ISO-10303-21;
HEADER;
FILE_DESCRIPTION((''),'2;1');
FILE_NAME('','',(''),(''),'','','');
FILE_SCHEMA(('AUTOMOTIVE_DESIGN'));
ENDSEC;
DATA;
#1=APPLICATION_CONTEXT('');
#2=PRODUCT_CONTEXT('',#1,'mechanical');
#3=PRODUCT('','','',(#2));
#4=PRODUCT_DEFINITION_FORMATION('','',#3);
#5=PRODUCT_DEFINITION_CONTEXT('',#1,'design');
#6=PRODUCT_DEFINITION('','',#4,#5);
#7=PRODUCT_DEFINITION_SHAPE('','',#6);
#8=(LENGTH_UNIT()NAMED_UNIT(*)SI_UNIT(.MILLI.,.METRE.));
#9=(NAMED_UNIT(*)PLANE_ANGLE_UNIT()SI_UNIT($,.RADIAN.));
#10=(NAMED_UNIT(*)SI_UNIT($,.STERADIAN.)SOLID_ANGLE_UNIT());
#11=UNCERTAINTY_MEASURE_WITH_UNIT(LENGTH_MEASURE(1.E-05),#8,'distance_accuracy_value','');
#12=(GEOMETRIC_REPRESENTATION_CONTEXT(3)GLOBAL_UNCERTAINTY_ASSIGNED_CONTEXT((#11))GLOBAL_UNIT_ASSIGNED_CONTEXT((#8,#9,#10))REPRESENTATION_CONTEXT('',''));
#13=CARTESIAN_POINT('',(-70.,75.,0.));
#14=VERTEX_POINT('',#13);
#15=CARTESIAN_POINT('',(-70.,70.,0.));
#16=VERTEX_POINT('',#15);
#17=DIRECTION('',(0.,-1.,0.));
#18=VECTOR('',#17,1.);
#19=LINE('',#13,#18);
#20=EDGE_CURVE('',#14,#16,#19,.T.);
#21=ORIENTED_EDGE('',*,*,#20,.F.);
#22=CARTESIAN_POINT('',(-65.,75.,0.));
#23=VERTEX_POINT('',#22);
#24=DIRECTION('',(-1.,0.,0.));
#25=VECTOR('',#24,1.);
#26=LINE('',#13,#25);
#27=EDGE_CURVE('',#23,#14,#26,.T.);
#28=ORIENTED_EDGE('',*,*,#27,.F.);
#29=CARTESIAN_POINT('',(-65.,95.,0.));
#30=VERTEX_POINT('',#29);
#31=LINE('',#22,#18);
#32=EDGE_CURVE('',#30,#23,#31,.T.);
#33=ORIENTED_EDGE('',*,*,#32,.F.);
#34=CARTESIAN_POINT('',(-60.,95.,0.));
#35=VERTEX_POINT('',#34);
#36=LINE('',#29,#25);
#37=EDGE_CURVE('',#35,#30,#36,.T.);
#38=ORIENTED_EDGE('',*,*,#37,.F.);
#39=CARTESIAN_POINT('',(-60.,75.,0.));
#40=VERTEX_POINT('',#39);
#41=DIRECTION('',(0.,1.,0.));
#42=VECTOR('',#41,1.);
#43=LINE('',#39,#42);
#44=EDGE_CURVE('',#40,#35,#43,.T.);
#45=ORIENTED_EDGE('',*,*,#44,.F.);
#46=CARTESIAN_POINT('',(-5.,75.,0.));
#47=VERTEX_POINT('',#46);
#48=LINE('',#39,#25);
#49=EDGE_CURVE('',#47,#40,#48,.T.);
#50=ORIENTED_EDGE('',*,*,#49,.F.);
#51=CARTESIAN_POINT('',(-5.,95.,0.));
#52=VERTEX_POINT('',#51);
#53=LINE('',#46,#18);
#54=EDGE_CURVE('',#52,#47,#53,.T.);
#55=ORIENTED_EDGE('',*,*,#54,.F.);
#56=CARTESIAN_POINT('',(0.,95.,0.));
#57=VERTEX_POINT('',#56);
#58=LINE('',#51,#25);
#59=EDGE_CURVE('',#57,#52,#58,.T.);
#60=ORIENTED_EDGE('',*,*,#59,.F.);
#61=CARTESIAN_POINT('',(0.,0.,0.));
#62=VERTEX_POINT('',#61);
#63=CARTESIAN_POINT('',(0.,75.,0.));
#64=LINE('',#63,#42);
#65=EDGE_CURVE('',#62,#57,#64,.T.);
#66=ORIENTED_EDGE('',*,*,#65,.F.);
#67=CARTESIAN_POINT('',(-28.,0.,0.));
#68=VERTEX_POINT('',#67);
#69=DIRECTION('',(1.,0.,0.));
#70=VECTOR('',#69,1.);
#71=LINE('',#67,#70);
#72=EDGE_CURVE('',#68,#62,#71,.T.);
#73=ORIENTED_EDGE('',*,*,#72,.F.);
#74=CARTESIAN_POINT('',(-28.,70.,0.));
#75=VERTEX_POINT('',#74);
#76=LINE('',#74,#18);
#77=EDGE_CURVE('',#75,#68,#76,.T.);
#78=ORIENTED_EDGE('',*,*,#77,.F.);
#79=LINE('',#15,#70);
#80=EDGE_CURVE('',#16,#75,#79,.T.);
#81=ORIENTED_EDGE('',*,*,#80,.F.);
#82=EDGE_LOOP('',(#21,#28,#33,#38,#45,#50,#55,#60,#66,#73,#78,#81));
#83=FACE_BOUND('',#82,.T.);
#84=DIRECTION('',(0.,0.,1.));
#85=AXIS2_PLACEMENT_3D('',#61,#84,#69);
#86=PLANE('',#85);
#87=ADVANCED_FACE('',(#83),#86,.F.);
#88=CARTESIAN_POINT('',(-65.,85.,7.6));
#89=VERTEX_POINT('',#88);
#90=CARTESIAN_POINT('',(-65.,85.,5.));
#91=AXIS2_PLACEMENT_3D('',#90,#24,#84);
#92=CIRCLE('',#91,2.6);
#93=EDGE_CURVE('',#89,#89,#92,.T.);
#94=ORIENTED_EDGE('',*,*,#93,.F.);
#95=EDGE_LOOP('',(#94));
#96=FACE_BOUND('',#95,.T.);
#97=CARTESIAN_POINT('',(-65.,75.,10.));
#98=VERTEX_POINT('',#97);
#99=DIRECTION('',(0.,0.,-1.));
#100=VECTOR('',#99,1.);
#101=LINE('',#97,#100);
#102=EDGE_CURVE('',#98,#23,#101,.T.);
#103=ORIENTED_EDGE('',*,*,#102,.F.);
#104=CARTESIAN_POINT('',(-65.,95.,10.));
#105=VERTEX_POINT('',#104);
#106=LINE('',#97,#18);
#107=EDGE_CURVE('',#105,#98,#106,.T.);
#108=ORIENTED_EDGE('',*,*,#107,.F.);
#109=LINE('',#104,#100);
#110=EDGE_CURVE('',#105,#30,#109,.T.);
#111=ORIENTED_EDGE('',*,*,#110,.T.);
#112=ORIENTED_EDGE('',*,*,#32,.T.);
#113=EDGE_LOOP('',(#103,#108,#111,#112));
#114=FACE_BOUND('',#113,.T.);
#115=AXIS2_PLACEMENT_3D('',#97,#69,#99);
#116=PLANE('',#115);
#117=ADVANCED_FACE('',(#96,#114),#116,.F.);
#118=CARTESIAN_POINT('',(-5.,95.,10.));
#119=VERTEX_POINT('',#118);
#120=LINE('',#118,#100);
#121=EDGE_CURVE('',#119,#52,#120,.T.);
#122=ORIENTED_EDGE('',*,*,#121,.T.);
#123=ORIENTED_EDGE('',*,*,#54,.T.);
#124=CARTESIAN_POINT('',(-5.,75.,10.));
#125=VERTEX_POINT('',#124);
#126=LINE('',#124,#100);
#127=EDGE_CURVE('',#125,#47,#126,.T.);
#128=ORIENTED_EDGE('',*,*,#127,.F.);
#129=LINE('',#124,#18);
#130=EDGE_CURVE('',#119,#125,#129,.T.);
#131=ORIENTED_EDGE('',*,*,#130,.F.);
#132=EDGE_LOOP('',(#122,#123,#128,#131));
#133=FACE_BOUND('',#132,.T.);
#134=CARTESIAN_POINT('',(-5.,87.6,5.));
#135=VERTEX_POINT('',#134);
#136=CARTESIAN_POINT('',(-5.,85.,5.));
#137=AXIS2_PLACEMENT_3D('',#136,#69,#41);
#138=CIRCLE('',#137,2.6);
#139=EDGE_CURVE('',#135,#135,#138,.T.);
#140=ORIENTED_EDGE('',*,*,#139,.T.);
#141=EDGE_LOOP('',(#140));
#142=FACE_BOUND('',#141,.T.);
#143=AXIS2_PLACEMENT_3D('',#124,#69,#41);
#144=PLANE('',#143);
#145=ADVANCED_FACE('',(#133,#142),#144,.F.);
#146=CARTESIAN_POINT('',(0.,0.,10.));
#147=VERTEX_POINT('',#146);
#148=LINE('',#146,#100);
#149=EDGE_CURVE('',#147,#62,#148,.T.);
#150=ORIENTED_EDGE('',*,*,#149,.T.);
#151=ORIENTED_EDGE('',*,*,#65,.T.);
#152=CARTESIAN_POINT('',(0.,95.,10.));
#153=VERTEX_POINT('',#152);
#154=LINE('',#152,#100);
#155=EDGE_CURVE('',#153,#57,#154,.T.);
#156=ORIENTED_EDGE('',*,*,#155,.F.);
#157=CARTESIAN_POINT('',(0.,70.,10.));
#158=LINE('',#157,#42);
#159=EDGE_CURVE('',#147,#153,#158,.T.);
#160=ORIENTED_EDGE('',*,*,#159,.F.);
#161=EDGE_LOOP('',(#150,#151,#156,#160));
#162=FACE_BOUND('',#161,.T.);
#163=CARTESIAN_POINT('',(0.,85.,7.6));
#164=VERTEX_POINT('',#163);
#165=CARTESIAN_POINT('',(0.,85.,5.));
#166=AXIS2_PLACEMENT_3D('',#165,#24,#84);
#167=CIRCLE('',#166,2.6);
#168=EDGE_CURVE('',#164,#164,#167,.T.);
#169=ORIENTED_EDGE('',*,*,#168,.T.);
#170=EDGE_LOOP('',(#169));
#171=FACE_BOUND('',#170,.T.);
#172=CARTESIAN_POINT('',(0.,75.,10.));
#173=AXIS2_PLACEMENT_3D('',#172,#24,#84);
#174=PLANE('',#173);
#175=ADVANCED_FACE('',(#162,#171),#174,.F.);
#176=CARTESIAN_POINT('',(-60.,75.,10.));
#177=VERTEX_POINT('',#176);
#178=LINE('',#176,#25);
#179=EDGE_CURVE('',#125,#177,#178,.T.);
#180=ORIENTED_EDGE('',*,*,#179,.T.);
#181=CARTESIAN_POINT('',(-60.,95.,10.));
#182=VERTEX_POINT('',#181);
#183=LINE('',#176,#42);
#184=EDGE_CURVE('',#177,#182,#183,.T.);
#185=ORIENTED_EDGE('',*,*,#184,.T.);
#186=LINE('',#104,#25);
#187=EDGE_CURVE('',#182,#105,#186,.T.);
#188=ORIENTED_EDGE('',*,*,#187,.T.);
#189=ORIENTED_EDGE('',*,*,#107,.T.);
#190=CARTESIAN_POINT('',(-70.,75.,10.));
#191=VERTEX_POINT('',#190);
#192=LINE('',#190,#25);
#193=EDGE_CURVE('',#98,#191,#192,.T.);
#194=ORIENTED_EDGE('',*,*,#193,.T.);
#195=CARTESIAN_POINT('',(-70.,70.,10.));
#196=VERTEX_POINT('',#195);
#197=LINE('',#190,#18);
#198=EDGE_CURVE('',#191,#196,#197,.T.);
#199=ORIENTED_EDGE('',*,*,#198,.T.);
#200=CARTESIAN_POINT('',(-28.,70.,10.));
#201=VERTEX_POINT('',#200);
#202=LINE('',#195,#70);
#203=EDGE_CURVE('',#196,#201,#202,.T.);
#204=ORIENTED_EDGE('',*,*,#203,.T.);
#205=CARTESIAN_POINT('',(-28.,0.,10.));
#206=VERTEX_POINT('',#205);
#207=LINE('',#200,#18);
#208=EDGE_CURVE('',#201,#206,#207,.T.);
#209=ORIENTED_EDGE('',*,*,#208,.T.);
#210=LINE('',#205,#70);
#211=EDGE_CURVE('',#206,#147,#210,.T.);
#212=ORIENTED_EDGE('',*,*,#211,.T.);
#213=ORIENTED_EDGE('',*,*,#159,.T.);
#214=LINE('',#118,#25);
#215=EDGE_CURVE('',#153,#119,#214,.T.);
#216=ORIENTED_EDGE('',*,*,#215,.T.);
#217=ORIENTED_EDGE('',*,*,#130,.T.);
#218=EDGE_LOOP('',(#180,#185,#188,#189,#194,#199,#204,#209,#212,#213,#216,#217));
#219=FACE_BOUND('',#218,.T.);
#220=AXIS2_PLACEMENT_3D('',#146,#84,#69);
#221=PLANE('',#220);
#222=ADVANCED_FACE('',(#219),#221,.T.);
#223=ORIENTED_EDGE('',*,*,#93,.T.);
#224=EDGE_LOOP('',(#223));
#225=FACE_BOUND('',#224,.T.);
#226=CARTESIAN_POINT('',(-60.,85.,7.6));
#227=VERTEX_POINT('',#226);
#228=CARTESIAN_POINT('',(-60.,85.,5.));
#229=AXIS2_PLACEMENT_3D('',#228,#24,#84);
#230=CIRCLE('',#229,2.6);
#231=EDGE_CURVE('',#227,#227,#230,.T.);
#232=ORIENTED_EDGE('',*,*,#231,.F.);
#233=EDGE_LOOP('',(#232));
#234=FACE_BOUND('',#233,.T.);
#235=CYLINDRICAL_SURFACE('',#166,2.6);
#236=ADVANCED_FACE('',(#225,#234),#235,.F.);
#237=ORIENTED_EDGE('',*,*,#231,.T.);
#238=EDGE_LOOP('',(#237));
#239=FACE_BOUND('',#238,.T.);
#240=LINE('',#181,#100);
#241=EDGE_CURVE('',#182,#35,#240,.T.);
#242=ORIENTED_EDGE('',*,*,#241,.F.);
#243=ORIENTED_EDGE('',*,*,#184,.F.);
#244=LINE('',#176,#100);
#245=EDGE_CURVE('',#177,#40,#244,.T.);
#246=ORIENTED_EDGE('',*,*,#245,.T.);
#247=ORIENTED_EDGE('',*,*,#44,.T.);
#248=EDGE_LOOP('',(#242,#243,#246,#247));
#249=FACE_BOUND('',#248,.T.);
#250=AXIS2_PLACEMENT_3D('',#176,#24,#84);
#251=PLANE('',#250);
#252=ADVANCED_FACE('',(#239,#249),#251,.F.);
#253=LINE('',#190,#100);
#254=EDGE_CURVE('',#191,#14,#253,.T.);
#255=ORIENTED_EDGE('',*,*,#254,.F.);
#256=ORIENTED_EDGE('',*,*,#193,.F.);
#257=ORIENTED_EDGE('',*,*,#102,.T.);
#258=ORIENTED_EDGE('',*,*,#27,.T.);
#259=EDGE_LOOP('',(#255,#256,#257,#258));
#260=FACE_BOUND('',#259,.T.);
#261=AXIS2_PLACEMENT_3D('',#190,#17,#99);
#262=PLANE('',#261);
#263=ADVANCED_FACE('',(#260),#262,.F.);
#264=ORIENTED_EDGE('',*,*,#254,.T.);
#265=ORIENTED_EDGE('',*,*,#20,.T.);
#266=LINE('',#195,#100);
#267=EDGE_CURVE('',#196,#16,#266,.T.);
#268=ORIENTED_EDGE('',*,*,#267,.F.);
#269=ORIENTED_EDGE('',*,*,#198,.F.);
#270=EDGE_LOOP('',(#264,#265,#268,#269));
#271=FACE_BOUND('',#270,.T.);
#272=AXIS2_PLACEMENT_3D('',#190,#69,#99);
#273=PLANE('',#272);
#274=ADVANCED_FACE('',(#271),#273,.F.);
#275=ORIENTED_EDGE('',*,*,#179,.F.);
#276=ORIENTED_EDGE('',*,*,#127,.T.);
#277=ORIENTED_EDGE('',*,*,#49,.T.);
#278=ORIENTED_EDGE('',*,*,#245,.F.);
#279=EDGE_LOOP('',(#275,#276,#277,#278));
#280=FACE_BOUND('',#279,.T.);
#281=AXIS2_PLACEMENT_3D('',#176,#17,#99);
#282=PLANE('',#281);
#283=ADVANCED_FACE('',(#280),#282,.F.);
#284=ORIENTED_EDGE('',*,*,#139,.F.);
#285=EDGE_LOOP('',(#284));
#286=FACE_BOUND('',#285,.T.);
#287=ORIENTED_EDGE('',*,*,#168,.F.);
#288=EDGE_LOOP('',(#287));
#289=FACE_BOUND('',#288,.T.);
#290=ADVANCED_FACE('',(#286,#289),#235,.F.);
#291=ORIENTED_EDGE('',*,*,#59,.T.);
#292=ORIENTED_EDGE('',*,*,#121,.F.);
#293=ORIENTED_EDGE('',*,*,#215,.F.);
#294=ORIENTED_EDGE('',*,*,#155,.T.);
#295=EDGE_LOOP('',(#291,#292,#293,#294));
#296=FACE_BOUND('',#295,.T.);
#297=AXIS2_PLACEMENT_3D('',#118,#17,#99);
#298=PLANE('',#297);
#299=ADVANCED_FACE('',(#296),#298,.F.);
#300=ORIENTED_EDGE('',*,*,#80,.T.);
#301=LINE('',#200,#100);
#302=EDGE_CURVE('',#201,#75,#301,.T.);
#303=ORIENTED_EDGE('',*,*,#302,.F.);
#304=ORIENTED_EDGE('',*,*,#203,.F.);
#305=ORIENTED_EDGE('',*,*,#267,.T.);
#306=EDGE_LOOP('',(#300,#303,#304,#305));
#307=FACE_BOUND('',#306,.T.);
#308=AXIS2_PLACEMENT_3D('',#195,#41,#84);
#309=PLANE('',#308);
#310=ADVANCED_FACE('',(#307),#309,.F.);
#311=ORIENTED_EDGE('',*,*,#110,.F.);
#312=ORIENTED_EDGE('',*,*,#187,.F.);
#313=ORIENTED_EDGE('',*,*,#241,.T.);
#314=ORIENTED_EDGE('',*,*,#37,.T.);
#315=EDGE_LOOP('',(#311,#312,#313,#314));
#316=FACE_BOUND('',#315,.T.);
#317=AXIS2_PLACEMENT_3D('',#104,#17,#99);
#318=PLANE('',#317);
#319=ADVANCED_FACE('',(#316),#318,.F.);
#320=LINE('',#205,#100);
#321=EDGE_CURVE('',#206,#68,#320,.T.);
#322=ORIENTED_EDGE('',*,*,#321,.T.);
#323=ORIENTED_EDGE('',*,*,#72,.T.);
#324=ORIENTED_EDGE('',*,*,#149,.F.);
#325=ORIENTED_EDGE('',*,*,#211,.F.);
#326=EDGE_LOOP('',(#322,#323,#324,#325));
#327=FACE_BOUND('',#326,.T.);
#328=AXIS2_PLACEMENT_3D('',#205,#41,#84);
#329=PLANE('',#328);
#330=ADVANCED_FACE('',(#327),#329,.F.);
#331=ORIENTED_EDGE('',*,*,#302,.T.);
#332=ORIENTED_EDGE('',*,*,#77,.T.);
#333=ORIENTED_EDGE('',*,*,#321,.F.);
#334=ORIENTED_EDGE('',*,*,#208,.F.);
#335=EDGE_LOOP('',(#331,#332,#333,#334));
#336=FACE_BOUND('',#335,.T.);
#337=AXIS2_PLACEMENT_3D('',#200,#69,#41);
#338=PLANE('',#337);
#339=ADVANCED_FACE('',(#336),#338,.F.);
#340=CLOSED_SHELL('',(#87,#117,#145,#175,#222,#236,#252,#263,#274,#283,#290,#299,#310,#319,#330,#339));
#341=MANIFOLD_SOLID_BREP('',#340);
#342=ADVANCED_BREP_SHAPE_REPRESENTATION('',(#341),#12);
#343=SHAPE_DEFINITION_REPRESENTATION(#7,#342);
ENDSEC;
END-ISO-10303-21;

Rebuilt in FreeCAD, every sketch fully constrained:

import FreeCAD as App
import Part
import Sketcher
from FreeCAD import Vector
Q = App.Units.Quantity


def add_polygon(sketch, points):
    """Adds a closed chain of lines whose ends are joined by coincident constraints."""
    first, n = sketch.GeometryCount, len(points)
    for a, b in zip(points, points[1:] + points[:1]):
        sketch.addGeometry(Part.LineSegment(App.Vector(*a, 0), App.Vector(*b, 0)), False)
    for i in range(n):
        sketch.addConstraint(Sketcher.Constraint("Coincident", first + i, 2, first + (i + 1) % n, 1))

doc = App.newDocument("Part")
body = doc.addObject("PartDesign::Body", "Body")

# Sketch on XY plane
sketch1 = body.newObject("Sketcher::SketchObject", "Sketch")
sketch1.AttachmentSupport = (doc.getObject("XY_Plane"), [""])
sketch1.MapMode = "FlatFace"
add_polygon(sketch1, [(-5, 75), (-60, 75), (-60, 95), (-65, 95), (-65, 75), (-70, 75), (-70, 70), (-28, 70), (-28, 0), (0, 0), (0, 95), (-5, 95)])  # lines 0-11
sketch1.addConstraint([
    Sketcher.Constraint("Horizontal", 0),
    Sketcher.Constraint("Vertical", 1),
    Sketcher.Constraint("Horizontal", 2),
    Sketcher.Constraint("Vertical", 3),
    Sketcher.Constraint("Horizontal", 4),
    Sketcher.Constraint("Vertical", 5),
    Sketcher.Constraint("Horizontal", 6),
    Sketcher.Constraint("Vertical", 7),
    Sketcher.Constraint("Horizontal", 8),
    Sketcher.Constraint("Vertical", 9),
    Sketcher.Constraint("Horizontal", 10),
    Sketcher.Constraint("Vertical", 11),
    Sketcher.Constraint("Coincident", 8, 2, -1, 1),
    Sketcher.Constraint("Horizontal", 0, 2, 3, 2),
    Sketcher.Constraint("Horizontal", 2, 2, 9, 2),
    Sketcher.Constraint("Equal", 2, 4),
    Sketcher.Constraint("Equal", 4, 10),
    Sketcher.Constraint("Equal", 10, 5),
    Sketcher.Constraint("DistanceX", 0, 2, 0, 1, Q("55 mm")),
    Sketcher.Constraint("DistanceX", 2, 2, 2, 1, Q("5 mm")),
    Sketcher.Constraint("DistanceX", 6, 1, 6, 2, Q("42 mm")),
    Sketcher.Constraint("DistanceY", 1, 1, 1, 2, Q("20 mm")),
    Sketcher.Constraint("DistanceY", 7, 2, 7, 1, Q("70 mm")),
])
pad1 = body.newObject("PartDesign::Pad", "Pad")
pad1.Profile = sketch1
pad1.Length = 10

# Sketch on YZ plane
sketch2 = body.newObject("Sketcher::SketchObject", "Sketch001")
sketch2.AttachmentSupport = (doc.getObject("YZ_Plane"), [""])
sketch2.MapMode = "FlatFace"
sketch2.AttachmentOffset = App.Placement(Vector(0, 0, -65), App.Rotation())
sketch2.addGeometry(Part.Circle(Vector(85, 5, 0), Vector(0, 0, 1), 2.6), False)
sketch2.addConstraint([
    Sketcher.Constraint("Diameter", 0, Q("5.2 mm")),
    Sketcher.Constraint("DistanceX", -1, 1, 0, 3, Q("85 mm")),
    Sketcher.Constraint("DistanceY", -1, 1, 0, 3, Q("5 mm")),
])
pocket1 = body.newObject("PartDesign::Pocket", "Pocket")
pocket1.Profile = sketch2
pocket1.Type = "ThroughAll"
pocket1.Reversed = True

doc.recompute()
